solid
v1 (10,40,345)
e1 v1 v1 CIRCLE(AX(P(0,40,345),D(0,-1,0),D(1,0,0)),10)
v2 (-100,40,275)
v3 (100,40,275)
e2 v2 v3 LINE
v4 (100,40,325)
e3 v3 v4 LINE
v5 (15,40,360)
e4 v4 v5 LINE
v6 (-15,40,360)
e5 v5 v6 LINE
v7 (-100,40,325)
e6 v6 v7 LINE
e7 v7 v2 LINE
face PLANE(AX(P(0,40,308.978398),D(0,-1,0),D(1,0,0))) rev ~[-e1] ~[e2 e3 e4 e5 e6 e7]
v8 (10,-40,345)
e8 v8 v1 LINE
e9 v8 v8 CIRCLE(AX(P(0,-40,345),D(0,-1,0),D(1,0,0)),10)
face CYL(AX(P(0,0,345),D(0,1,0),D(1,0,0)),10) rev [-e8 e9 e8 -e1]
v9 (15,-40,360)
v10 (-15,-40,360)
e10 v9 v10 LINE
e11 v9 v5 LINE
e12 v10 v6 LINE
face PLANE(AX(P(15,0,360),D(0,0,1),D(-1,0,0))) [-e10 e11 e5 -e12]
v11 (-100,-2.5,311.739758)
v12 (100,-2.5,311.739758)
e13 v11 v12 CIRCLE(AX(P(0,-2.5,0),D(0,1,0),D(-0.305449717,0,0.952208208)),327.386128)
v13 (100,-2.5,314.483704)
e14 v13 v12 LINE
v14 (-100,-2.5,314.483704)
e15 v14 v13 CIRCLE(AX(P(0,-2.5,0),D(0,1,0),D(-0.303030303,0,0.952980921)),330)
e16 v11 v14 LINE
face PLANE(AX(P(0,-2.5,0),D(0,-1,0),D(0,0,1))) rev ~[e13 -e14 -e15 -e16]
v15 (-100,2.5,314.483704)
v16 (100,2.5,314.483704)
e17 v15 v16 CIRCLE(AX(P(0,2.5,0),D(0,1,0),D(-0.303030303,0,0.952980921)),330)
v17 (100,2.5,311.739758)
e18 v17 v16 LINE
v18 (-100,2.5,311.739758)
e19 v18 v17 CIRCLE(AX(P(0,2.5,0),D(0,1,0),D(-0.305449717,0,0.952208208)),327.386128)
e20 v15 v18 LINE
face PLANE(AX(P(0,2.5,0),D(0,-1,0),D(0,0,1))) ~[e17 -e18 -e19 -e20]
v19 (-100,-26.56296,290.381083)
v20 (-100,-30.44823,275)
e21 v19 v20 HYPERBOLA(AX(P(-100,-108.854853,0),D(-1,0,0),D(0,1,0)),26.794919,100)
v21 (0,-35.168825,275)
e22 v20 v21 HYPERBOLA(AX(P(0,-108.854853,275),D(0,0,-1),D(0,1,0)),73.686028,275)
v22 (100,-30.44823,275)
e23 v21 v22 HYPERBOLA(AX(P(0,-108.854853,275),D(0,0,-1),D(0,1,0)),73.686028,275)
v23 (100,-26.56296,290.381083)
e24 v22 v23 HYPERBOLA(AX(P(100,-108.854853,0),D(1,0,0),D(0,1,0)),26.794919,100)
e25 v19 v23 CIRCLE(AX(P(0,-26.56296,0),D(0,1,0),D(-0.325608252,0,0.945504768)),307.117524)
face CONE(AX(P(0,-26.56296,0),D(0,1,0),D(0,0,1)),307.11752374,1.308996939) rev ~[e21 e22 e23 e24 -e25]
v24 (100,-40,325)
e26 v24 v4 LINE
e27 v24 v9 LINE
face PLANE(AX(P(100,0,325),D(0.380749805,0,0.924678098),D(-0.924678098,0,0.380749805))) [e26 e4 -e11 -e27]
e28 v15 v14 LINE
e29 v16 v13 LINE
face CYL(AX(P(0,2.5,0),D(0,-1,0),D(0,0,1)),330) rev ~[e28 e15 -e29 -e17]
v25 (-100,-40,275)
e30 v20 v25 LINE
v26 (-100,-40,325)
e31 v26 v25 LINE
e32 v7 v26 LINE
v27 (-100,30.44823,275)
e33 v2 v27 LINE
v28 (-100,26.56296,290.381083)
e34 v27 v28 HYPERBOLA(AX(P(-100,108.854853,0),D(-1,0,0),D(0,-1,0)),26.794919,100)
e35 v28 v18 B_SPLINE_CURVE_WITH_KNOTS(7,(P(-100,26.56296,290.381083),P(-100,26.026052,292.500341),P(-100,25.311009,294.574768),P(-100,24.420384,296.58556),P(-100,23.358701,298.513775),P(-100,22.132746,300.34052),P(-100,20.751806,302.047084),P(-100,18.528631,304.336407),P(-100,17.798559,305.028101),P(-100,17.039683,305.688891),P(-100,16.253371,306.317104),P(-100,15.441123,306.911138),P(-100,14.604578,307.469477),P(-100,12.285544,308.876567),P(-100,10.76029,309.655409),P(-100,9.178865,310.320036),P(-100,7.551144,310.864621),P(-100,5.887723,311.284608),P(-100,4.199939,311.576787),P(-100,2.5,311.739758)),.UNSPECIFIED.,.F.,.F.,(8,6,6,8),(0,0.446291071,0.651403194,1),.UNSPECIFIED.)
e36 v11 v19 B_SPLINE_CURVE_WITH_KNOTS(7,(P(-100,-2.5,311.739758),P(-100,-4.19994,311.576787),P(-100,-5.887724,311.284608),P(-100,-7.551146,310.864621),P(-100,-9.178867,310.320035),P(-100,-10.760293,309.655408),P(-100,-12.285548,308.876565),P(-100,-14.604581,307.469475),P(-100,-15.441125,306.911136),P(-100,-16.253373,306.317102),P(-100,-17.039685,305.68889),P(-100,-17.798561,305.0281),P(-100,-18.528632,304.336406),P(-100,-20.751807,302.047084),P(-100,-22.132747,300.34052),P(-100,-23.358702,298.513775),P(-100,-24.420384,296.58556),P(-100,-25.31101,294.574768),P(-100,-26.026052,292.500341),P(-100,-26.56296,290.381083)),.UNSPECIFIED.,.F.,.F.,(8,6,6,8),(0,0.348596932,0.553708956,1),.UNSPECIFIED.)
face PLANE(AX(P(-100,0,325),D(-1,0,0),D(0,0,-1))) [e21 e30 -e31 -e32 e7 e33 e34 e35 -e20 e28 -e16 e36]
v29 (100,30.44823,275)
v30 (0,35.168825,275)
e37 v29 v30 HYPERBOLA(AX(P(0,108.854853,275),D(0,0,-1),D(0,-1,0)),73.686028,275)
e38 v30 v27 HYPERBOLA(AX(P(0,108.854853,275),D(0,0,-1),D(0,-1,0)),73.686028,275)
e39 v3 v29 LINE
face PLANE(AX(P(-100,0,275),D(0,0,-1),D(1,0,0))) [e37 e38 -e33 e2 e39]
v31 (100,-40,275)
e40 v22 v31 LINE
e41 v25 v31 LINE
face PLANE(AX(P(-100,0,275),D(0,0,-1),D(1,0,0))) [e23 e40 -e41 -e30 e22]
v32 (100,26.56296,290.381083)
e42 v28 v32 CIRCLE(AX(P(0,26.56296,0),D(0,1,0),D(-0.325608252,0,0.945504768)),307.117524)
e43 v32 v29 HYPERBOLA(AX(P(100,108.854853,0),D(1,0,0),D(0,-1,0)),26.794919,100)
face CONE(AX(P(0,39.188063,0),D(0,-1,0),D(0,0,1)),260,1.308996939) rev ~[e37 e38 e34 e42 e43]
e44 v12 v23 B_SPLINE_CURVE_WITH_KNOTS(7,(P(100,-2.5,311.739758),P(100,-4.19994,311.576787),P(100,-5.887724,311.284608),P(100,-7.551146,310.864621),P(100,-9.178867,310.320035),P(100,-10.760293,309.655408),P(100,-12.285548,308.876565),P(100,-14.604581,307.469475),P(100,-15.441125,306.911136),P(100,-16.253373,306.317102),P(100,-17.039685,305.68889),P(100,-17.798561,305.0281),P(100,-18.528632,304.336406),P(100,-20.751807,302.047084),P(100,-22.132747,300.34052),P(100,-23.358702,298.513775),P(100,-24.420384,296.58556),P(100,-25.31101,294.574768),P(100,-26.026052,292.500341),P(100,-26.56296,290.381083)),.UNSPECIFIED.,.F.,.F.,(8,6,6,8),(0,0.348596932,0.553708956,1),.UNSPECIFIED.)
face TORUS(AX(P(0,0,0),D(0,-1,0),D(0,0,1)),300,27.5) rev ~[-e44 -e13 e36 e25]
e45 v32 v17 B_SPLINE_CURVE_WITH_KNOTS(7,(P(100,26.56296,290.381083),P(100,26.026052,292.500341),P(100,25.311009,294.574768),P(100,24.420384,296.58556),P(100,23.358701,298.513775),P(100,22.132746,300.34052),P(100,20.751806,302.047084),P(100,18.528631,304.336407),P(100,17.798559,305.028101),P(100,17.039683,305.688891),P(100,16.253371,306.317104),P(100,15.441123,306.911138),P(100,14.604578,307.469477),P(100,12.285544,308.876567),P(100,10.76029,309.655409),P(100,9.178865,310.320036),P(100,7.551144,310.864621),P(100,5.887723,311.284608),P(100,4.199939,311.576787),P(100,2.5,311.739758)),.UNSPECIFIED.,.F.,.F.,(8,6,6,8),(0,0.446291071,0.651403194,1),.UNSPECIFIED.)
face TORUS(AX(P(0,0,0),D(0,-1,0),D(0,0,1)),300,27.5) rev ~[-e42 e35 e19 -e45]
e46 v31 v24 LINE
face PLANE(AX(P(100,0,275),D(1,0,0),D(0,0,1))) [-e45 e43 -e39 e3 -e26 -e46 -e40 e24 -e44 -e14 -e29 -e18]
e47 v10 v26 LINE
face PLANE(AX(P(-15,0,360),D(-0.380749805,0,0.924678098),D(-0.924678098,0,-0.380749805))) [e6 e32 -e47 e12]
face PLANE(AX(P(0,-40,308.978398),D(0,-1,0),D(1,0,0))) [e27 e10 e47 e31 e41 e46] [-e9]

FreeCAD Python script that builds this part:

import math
import FreeCAD as App
import Part
import Sketcher

V = App.Vector
Q = App.Units.Quantity

doc = App.newDocument("Part")
body = doc.addObject("PartDesign::Body", "Body")

# Sketch on XZ plane
sketch1 = doc.addObject("Sketcher::SketchObject", "Sketch")
body.addObject(sketch1)
sketch1.AttachmentSupport = (doc.XZ_Plane, [""])
sketch1.MapMode = "FlatFace"
sketch1.addGeometry(Part.LineSegment(V(-15, 360, 0), V(-100, 325, 0)), False)
sketch1.addGeometry(Part.LineSegment(V(-100, 325, 0), V(-100, 275, 0)), False)
sketch1.addGeometry(Part.LineSegment(V(-100, 275, 0), V(100, 275, 0)), False)
sketch1.addGeometry(Part.LineSegment(V(100, 275, 0), V(100, 325, 0)), False)
sketch1.addGeometry(Part.LineSegment(V(100, 325, 0), V(15, 360, 0)), False)
sketch1.addGeometry(Part.LineSegment(V(15, 360, 0), V(-15, 360, 0)), False)
sketch1.addGeometry(Part.Circle(V(0, 345, 0), V(0, 0, 1), 10), False)
sketch1.addConstraint(Sketcher.Constraint("Coincident", 0, 2, 1, 1))
sketch1.addConstraint(Sketcher.Constraint("Coincident", 1, 2, 2, 1))
sketch1.addConstraint(Sketcher.Constraint("Coincident", 2, 2, 3, 1))
sketch1.addConstraint(Sketcher.Constraint("Coincident", 3, 2, 4, 1))
sketch1.addConstraint(Sketcher.Constraint("Coincident", 4, 2, 5, 1))
sketch1.addConstraint(Sketcher.Constraint("Coincident", 5, 2, 0, 1))
sketch1.addConstraint(Sketcher.Constraint("Vertical", 1))
sketch1.addConstraint(Sketcher.Constraint("Horizontal", 2))
sketch1.addConstraint(Sketcher.Constraint("Vertical", 3))
sketch1.addConstraint(Sketcher.Constraint("Horizontal", 5))
sketch1.addConstraint(Sketcher.Constraint("Symmetric", 0, 2, 3, 2, -2))
sketch1.addConstraint(Sketcher.Constraint("PointOnObject", 6, 3, -2))
sketch1.addConstraint(Sketcher.Constraint("Equal", 0, 4))
sketch1.addConstraint(Sketcher.Constraint("Diameter", 6, 20.0))
sketch1.addConstraint(Sketcher.Constraint("DistanceX", 2, 1, 2, 2, 200.0))
sketch1.addConstraint(Sketcher.Constraint("DistanceX", 5, 2, 5, 1, 30.0))
sketch1.addConstraint(Sketcher.Constraint("DistanceY", 1, 2, 1, 1, 50.0))
sketch1.addConstraint(Sketcher.Constraint("DistanceY", -1, 1, 6, 3, 345.0))
sketch1.addConstraint(Sketcher.Constraint("DistanceY", -1, 1, 0, 2, 325.0))
sketch1.addConstraint(Sketcher.Constraint("DistanceY", -1, 1, 4, 2, 360.0))
pad1 = doc.addObject("PartDesign::Pad", "Pad")
body.addObject(pad1)
pad1.Profile = sketch1
pad1.Length = 80
pad1.Midplane = True

# Sketch on YZ plane
sketch2 = doc.addObject("Sketcher::SketchObject", "Sketch001")
body.addObject(sketch2)
sketch2.AttachmentSupport = (doc.YZ_Plane, [""])
sketch2.MapMode = "FlatFace"
sketch2.addGeometry(Part.LineSegment(V(39.2, 260, 0), V(26.6, 307.1, 0)), False)
sketch2.addGeometry(Part.ArcOfCircle(Part.Circle(V(0, 300, 0), V(0, 0, 1), 27.5), math.radians(15), math.radians(85)), False)
sketch2.addGeometry(Part.LineSegment(V(2.5, 327.4, 0), V(2.5, 330, 0)), False)
sketch2.addGeometry(Part.LineSegment(V(2.5, 330, 0), V(-2.5, 330, 0)), False)
sketch2.addGeometry(Part.LineSegment(V(-2.5, 330, 0), V(-2.5, 327.4, 0)), False)
sketch2.addGeometry(Part.ArcOfCircle(Part.Circle(V(0, 300, 0), V(0, 0, 1), 27.5), math.radians(95), math.radians(165)), False)
sketch2.addGeometry(Part.LineSegment(V(-26.6, 307.1, 0), V(-39.2, 260, 0)), False)
sketch2.addGeometry(Part.LineSegment(V(-39.2, 260, 0), V(39.2, 260, 0)), False)
sketch2.addConstraint(Sketcher.Constraint("Tangent", 0, 2, 1, 1))
sketch2.addConstraint(Sketcher.Constraint("Coincident", 1, 2, 2, 1))
sketch2.addConstraint(Sketcher.Constraint("Coincident", 2, 2, 3, 1))
sketch2.addConstraint(Sketcher.Constraint("Coincident", 3, 2, 4, 1))
sketch2.addConstraint(Sketcher.Constraint("Coincident", 4, 2, 5, 1))
sketch2.addConstraint(Sketcher.Constraint("Tangent", 5, 2, 6, 1))
sketch2.addConstraint(Sketcher.Constraint("Coincident", 6, 2, 7, 1))
sketch2.addConstraint(Sketcher.Constraint("Coincident", 7, 2, 0, 1))
sketch2.addConstraint(Sketcher.Constraint("Vertical", 2))
sketch2.addConstraint(Sketcher.Constraint("Horizontal", 3))
sketch2.addConstraint(Sketcher.Constraint("Vertical", 4))
sketch2.addConstraint(Sketcher.Constraint("Horizontal", 7))
sketch2.addConstraint(Sketcher.Constraint("Coincident", 5, 3, 1, 3))
sketch2.addConstraint(Sketcher.Constraint("Equal", 1, 5))
sketch2.addConstraint(Sketcher.Constraint("Symmetric", 1, 2, 4, 2, -2))
sketch2.addConstraint(Sketcher.Constraint("Horizontal", 0, 2, 5, 2))
sketch2.addConstraint(Sketcher.Constraint("Radius", 1, 27.5))
sketch2.addConstraint(Sketcher.Constraint("DistanceX", 3, 2, 3, 1, 5.0))
sketch2.addConstraint(Sketcher.Constraint("Angle", 0, Q("105 deg")))
sketch2.addConstraint(Sketcher.Constraint("DistanceY", -1, 1, 1, 3, 300.0))
sketch2.addConstraint(Sketcher.Constraint("DistanceY", -1, 1, 2, 2, 330.0))
sketch2.addConstraint(Sketcher.Constraint("DistanceY", -1, 1, 6, 2, 260.0))
groove = doc.addObject("PartDesign::Groove", "Groove")
body.addObject(groove)
groove.Profile = sketch2
groove.ReferenceAxis = (sketch2, ["H_Axis"])
groove.Angle = 360

doc.recompute()
